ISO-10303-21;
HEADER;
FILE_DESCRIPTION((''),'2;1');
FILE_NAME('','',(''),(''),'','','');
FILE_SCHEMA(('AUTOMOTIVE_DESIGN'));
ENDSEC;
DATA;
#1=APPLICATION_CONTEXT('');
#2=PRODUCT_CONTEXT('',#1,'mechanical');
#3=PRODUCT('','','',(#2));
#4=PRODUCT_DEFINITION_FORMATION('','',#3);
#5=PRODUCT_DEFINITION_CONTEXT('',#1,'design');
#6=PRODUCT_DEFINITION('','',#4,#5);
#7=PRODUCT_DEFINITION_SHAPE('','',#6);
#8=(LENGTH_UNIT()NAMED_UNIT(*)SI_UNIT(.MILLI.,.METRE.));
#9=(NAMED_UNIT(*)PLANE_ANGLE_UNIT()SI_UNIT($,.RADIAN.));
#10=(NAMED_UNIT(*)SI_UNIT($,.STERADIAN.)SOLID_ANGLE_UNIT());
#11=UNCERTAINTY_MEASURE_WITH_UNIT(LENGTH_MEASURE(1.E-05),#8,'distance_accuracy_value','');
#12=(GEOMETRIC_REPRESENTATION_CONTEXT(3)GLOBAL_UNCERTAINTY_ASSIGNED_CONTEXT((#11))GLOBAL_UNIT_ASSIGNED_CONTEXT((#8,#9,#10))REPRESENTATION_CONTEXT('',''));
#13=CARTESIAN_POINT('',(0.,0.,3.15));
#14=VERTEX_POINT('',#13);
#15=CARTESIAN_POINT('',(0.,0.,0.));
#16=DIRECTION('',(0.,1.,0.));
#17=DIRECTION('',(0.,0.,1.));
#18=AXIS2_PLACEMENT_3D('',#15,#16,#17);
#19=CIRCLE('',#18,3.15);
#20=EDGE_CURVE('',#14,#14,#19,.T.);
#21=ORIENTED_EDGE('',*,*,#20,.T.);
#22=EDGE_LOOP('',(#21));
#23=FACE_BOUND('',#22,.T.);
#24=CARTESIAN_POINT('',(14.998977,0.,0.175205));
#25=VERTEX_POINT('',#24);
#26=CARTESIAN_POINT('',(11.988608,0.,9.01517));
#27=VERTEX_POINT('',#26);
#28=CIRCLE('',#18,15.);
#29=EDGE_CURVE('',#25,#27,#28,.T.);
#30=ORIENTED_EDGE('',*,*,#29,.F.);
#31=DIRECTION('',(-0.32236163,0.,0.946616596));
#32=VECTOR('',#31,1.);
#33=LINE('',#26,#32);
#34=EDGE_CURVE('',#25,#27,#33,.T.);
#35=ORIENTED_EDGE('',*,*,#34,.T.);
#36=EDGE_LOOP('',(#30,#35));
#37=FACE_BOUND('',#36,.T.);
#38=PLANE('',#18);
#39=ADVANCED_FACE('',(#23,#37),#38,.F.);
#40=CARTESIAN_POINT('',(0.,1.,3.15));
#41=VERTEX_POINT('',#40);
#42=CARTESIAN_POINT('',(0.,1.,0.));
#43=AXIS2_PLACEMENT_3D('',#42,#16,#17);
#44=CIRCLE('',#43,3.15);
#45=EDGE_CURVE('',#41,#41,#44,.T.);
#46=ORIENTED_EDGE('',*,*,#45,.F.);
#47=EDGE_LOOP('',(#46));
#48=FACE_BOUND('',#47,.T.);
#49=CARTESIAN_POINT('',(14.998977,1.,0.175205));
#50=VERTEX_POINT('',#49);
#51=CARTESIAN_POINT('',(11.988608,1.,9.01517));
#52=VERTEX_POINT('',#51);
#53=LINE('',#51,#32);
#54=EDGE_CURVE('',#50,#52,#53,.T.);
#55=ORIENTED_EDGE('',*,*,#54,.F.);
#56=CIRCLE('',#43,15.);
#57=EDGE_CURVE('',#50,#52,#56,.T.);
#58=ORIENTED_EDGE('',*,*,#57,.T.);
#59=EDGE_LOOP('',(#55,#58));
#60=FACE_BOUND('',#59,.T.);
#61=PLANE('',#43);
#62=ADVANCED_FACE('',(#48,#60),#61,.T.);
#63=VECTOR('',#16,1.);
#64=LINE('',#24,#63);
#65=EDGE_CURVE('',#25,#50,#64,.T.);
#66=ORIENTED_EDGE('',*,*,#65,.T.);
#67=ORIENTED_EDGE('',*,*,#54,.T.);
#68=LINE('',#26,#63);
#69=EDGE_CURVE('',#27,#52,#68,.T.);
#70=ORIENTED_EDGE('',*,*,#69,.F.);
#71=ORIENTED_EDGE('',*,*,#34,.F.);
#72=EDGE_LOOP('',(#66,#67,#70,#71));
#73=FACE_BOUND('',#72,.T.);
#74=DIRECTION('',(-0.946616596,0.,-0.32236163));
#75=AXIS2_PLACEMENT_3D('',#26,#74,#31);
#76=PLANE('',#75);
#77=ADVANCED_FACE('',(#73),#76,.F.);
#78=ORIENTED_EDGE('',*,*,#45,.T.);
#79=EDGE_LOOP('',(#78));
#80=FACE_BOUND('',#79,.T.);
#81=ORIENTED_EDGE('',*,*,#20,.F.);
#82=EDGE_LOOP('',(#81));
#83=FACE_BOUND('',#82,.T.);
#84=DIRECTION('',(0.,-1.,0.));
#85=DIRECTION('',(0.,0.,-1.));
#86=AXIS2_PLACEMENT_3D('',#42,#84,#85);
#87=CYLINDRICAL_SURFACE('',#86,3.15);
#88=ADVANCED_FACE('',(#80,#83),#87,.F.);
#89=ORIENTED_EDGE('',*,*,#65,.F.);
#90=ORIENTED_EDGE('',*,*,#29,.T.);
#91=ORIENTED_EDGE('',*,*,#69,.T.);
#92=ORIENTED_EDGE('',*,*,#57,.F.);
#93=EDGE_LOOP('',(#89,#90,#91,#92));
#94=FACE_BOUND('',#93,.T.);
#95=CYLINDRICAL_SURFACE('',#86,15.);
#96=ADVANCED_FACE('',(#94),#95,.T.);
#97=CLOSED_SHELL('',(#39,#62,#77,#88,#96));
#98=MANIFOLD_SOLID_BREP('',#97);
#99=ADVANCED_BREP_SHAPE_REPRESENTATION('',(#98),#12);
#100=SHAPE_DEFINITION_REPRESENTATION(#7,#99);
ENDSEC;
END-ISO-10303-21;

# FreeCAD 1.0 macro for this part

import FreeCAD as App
import Part
import Sketcher
from FreeCAD import Vector
Q = App.Units.Quantity

doc = App.newDocument("Part")
body = doc.addObject("PartDesign::Body", "Body")

sketch1 = doc.addObject("Sketcher::SketchObject", "Sketch")
body.addObject(sketch1)
sketch1.AttachmentSupport = (doc.XZ_Plane, [""])
sketch1.MapMode = "FlatFace"
sketch1.addGeometry(Part.Circle(Vector(0, 0, 0), Vector(0, 0, 1), 15), False)
sketch1.addGeometry(Part.Circle(Vector(0, 0, 0), Vector(0, 0, 1), 3.15), False)
sketch1.addConstraint(Sketcher.Constraint("Coincident", 0, 3, -1, 1))
sketch1.addConstraint(Sketcher.Constraint("Coincident", 1, 3, -1, 1))
sketch1.addConstraint(Sketcher.Constraint("Diameter", 0, Q("30 mm")))
sketch1.addConstraint(Sketcher.Constraint("Diameter", 1, Q("6.3 mm")))
pad1 = doc.addObject("PartDesign::Pad", "Pad")
body.addObject(pad1)
pad1.Profile = sketch1
pad1.Length = 1
pad1.Reversed = True

sketch2 = doc.addObject("Sketcher::SketchObject", "Sketch001")
body.addObject(sketch2)
sketch2.AttachmentSupport = (doc.XZ_Plane, [""])
sketch2.MapMode = "FlatFace"
sketch2.AttachmentOffset = App.Placement(Vector(0, 0, -1), App.Rotation())
sketch2.addGeometry(Part.LineSegment(Vector(14.998977, 0.175205, 0), Vector(11.988608, 9.01517, 0)), False)
sketch2.addGeometry(Part.LineSegment(Vector(11.988608, 9.01517, 0), Vector(13.966369, 9.688678, 0)), False)
sketch2.addGeometry(Part.LineSegment(Vector(13.966369, 9.688678, 0), Vector(16.976738, 0.848714, 0)), False)
sketch2.addGeometry(Part.LineSegment(Vector(16.976738, 0.848714, 0), Vector(14.998977, 0.175205, 0)), False)
sketch2.addConstraint(Sketcher.Constraint("Coincident", 0, 2, 1, 1))
sketch2.addConstraint(Sketcher.Constraint("Coincident", 1, 2, 2, 1))
sketch2.addConstraint(Sketcher.Constraint("Coincident", 2, 2, 3, 1))
sketch2.addConstraint(Sketcher.Constraint("Coincident", 3, 2, 0, 1))
sketch2.addConstraint(Sketcher.Constraint("Perpendicular", 0, 1))
sketch2.addConstraint(Sketcher.Constraint("Perpendicular", 1, 2))
sketch2.addConstraint(Sketcher.Constraint("Perpendicular", 2, 3))
sketch2.addConstraint(Sketcher.Constraint("DistanceY", -1, 1, 0, 2, Q("9.01517 mm")))
sketch2.addConstraint(Sketcher.Constraint("DistanceX", -1, 1, 1, 2, Q("13.966369 mm")))
sketch2.addConstraint(Sketcher.Constraint("DistanceY", -1, 1, 1, 2, Q("9.688678 mm")))
sketch2.addConstraint(Sketcher.Constraint("DistanceX", -1, 1, 2, 2, Q("16.976738 mm")))
sketch2.addConstraint(Sketcher.Constraint("DistanceX", 0, 2, 1, 2, Q("1.977762 mm")))
pocket1 = doc.addObject("PartDesign::Pocket", "Pocket")
body.addObject(pocket1)
pocket1.Profile = sketch2
pocket1.Length = 1
pocket1.Reversed = True

doc.recompute()
